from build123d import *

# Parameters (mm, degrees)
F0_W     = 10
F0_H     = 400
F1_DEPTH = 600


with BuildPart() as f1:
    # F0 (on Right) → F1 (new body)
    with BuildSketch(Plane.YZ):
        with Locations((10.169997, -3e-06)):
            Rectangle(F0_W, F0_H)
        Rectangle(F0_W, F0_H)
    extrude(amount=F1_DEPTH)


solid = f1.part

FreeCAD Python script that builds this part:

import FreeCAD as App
import Part
import Sketcher
Q = App.Units.Quantity

doc = App.newDocument("Part")
body = doc.addObject("PartDesign::Body", "Body")
body.AllowCompound = True

# Sketch on YZ plane
sketch1 = body.newObject("Sketcher::SketchObject", "Sketch")
sketch1.AttachmentSupport = (doc.getObject("YZ_Plane"), [""])
sketch1.MapMode = "FlatFace"
sketch1.addGeometry([
    Part.LineSegment(App.Vector(5, 200, 0), App.Vector(5, -200, 0)),  # 0
    Part.LineSegment(App.Vector(5, -200, 0), App.Vector(15, -200, 0)),  # 1
    Part.LineSegment(App.Vector(15, -200, 0), App.Vector(15, 200, 0)),  # 2
    Part.LineSegment(App.Vector(15, 200, 0), App.Vector(5, 200, 0)),  # 3
    Part.LineSegment(App.Vector(-5, 200, 0), App.Vector(-5, -200, 0)),  # 4
    Part.LineSegment(App.Vector(-5, -200, 0), App.Vector(5, -200, 0)),  # 5
    Part.LineSegment(App.Vector(5, -200, 0), App.Vector(5, 200, 0)),  # 6
    Part.LineSegment(App.Vector(5, 200, 0), App.Vector(-5, 200, 0)),  # 7
], False)
sketch1.addConstraint([
    Sketcher.Constraint("Coincident", 0, 2, 1, 1),
    Sketcher.Constraint("Coincident", 1, 2, 2, 1),
    Sketcher.Constraint("Coincident", 2, 2, 3, 1),
    Sketcher.Constraint("Coincident", 3, 2, 0, 1),
    Sketcher.Constraint("Coincident", 4, 2, 5, 1),
    Sketcher.Constraint("Coincident", 5, 2, 6, 1),
    Sketcher.Constraint("Coincident", 6, 2, 7, 1),
    Sketcher.Constraint("Coincident", 7, 2, 4, 1),
    Sketcher.Constraint("Vertical", 0),
    Sketcher.Constraint("Horizontal", 1),
    Sketcher.Constraint("Vertical", 2),
    Sketcher.Constraint("Horizontal", 3),
    Sketcher.Constraint("Vertical", 4),
    Sketcher.Constraint("Horizontal", 5),
    Sketcher.Constraint("Vertical", 6),
    Sketcher.Constraint("Horizontal", 7),
    Sketcher.Constraint("Symmetric", 4, 2, 6, 2, -1, 1),
    Sketcher.Constraint("Equal", 3, 5),
    Sketcher.Constraint("Equal", 2, 4),
    Sketcher.Constraint("DistanceX", 1, 1, 1, 2, Q("10 mm")),
    Sketcher.Constraint("DistanceY", 0, 2, 0, 1, Q("400 mm")),
    Sketcher.Constraint("DistanceX", -1, 1, 0, 2, Q("5.169997 mm")),
    Sketcher.Constraint("DistanceY", 0, 2, -1, 1, Q("200.000003 mm")),
])
pad1 = body.newObject("PartDesign::Pad", "Pad")
pad1.Profile = sketch1
pad1.Length = 600

doc.recompute()
